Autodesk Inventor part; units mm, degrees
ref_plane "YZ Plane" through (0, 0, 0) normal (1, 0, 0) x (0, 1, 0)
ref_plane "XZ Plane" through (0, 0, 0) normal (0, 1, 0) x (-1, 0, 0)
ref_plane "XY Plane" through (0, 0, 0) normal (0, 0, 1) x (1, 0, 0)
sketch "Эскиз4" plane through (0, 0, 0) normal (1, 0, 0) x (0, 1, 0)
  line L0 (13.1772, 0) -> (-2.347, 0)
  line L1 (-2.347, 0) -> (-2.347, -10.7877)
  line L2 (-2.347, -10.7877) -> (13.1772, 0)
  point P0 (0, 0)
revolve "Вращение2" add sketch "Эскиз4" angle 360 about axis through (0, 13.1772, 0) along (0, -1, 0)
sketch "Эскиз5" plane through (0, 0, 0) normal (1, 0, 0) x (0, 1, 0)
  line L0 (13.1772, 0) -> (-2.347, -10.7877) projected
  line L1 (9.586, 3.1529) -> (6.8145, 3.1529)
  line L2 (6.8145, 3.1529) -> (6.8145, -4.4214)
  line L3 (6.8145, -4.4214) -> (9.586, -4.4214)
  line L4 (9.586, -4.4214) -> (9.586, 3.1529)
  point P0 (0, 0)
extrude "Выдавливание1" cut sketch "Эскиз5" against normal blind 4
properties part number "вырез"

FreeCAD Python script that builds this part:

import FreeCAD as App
import Part
import Sketcher
Q = App.Units.Quantity


def add_polygon(sketch, points):
    """Adds a closed chain of lines whose ends are joined by coincident constraints."""
    first, n = sketch.GeometryCount, len(points)
    for a, b in zip(points, points[1:] + points[:1]):
        sketch.addGeometry(Part.LineSegment(App.Vector(*a, 0), App.Vector(*b, 0)), False)
    for i in range(n):
        sketch.addConstraint(Sketcher.Constraint("Coincident", first + i, 2, first + (i + 1) % n, 1))

doc = App.newDocument("Part")
body = doc.addObject("PartDesign::Body", "Body")

# Sketch on YZ plane
sketch1 = body.newObject("Sketcher::SketchObject", "Sketch")
sketch1.AttachmentSupport = (doc.getObject("YZ_Plane"), [""])
sketch1.MapMode = "FlatFace"
add_polygon(sketch1, [(-2.347, -10.7877), (13.1772, 0), (-2.347, 0)])  # lines 0-2
sketch1.addConstraint(Sketcher.Constraint("Horizontal", 1))
sketch1.addConstraint(Sketcher.Constraint("Vertical", 2))
sketch1.addConstraint(Sketcher.Constraint("PointOnObject", 0, 2, -1))
sketch1.addConstraint(Sketcher.Constraint("DistanceX", 1, 2, 1, 1, Q("15.5242 mm")))
sketch1.addConstraint(Sketcher.Constraint("DistanceY", 2, 2, 2, 1, Q("10.7877 mm")))
sketch1.addConstraint(Sketcher.Constraint("DistanceX", 1, 2, -1, 1, Q("2.347 mm")))
revolution = body.newObject("PartDesign::Revolution", "Revolution")
revolution.Profile = sketch1
revolution.ReferenceAxis = (sketch1, ["H_Axis"])
revolution.Angle = 360

# Sketch on YZ plane
sketch2 = body.newObject("Sketcher::SketchObject", "Sketch001")
sketch2.AttachmentSupport = (doc.getObject("YZ_Plane"), [""])
sketch2.MapMode = "FlatFace"
add_polygon(sketch2, [(9.586, -4.4214), (9.586, 3.1529), (6.8145, 3.1529), (6.8145, -4.4214)])  # lines 0-3
sketch2.addConstraint(Sketcher.Constraint("Vertical", 0))
sketch2.addConstraint(Sketcher.Constraint("Horizontal", 1))
sketch2.addConstraint(Sketcher.Constraint("Vertical", 2))
sketch2.addConstraint(Sketcher.Constraint("Horizontal", 3))
sketch2.addConstraint(Sketcher.Constraint("DistanceX", 1, 2, 1, 1, Q("2.7715 mm")))
sketch2.addConstraint(Sketcher.Constraint("DistanceY", 0, 1, 0, 2, Q("7.5743 mm")))
sketch2.addConstraint(Sketcher.Constraint("DistanceX", -1, 1, 0, 2, Q("9.586 mm")))
sketch2.addConstraint(Sketcher.Constraint("DistanceY", -1, 1, 0, 2, Q("3.153 mm")))
pocket1 = body.newObject("PartDesign::Pocket", "Pocket")
pocket1.Profile = sketch2
pocket1.Length = 4

doc.recompute()
